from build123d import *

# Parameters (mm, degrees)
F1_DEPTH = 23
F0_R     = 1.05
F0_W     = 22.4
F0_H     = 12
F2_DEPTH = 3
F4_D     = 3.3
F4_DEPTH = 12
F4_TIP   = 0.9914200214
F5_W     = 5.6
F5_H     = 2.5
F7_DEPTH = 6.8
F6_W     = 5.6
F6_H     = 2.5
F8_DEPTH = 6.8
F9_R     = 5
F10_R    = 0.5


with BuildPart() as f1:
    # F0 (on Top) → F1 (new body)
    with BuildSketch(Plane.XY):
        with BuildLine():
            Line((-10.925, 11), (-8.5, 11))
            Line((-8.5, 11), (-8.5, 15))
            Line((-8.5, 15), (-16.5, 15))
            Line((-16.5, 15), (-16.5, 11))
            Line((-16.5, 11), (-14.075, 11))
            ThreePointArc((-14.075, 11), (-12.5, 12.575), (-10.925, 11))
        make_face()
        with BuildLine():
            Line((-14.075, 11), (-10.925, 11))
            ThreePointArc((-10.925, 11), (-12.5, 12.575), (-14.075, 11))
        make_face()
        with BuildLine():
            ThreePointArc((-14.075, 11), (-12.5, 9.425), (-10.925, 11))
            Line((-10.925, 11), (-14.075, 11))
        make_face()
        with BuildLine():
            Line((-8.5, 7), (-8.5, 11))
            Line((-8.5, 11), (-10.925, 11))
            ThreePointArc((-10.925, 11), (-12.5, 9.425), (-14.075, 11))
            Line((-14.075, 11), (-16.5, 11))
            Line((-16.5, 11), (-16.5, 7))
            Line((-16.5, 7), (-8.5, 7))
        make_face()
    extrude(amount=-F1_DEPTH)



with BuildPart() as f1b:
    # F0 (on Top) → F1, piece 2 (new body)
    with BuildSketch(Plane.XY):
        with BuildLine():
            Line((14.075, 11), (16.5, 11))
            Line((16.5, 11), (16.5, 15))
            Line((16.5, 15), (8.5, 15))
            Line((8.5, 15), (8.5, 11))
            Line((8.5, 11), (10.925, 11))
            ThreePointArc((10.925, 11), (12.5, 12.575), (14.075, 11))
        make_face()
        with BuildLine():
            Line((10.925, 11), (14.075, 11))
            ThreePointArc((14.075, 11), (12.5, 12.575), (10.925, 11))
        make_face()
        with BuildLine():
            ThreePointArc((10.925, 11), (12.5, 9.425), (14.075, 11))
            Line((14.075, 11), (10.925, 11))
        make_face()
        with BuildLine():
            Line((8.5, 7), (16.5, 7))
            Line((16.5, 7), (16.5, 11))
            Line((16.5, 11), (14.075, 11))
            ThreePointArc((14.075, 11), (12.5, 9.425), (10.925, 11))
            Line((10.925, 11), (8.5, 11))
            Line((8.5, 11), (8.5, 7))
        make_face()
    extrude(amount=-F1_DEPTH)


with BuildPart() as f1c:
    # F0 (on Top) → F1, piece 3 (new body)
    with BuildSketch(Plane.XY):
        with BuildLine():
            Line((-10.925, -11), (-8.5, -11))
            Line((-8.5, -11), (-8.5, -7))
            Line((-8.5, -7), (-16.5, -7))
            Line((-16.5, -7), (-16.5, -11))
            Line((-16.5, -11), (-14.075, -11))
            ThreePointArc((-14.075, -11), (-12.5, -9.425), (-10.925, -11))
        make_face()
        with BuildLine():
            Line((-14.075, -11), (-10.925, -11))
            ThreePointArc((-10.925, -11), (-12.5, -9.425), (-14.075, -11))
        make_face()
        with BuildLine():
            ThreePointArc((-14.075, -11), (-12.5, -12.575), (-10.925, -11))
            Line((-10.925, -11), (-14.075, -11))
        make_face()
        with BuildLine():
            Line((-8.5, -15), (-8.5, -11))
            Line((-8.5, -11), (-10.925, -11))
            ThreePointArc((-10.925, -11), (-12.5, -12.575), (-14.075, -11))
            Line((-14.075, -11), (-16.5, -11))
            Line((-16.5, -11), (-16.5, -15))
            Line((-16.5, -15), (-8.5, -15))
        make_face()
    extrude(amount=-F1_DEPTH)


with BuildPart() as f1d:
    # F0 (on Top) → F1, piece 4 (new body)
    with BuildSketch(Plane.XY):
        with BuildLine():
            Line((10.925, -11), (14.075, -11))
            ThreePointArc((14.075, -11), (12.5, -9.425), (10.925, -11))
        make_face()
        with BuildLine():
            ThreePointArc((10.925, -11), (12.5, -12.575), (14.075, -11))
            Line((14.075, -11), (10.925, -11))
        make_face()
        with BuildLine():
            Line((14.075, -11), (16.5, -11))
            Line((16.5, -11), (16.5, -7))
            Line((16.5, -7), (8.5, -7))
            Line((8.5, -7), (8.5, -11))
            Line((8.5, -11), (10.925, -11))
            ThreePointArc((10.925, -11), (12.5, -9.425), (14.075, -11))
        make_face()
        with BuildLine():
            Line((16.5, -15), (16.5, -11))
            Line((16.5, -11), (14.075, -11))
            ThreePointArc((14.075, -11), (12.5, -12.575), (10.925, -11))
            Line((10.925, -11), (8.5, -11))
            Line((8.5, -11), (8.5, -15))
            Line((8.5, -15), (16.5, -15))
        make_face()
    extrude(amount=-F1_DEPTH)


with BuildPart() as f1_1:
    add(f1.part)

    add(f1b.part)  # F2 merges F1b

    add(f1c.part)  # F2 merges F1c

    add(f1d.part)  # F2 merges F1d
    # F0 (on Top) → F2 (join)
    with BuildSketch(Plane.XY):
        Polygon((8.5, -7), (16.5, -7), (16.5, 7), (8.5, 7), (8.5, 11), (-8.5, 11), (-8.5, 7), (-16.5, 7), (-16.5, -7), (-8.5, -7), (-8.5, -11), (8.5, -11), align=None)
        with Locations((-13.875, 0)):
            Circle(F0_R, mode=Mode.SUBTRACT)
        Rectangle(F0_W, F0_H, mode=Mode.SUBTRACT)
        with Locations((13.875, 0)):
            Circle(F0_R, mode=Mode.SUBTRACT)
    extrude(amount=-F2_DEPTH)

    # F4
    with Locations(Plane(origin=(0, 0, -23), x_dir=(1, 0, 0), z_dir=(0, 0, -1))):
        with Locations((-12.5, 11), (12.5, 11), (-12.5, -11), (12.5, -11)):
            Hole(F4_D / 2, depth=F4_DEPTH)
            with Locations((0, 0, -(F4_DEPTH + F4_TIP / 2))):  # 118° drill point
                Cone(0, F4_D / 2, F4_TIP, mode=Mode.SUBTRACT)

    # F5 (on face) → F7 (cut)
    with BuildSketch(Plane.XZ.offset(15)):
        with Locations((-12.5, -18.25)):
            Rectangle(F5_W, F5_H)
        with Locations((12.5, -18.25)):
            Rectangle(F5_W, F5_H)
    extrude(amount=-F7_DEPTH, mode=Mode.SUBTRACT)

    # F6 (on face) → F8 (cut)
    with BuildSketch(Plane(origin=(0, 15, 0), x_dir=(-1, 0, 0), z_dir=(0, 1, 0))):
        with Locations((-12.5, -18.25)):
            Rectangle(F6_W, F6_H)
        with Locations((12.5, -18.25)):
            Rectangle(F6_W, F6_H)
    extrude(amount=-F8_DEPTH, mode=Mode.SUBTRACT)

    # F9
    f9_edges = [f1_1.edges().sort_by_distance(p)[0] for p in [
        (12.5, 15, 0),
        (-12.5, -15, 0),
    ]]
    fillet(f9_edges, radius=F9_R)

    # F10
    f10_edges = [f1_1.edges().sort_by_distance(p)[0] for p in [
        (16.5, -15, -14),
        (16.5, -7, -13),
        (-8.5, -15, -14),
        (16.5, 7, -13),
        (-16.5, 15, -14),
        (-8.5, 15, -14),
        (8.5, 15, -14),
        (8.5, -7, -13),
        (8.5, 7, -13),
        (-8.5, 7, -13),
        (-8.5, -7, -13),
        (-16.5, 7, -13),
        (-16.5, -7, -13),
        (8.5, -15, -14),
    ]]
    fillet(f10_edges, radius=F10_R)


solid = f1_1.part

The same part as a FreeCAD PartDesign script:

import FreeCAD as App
import Part
import Sketcher

V = App.Vector
Q = App.Units.Quantity


def edges_at(feature, points):
    """Names of the edges that pass closest to the given points."""
    edges = feature.Shape.Edges
    near = lambda p: min(range(len(edges)), key=lambda i: edges[i].distToShape(Part.Vertex(*p))[0])
    return sorted({f"Edge{near(p) + 1}" for p in points})

doc = App.newDocument("Part")
body = doc.addObject("PartDesign::Body", "Body")

# Sketch on XY plane
sketch1 = body.newObject("Sketcher::SketchObject", "Sketch")
sketch1.AttachmentSupport = (doc.getObject("XY_Plane"), [""])
sketch1.MapMode = "FlatFace"
sketch1.addGeometry([
    Part.LineSegment(V(-8.5, 15, 0), V(-16.5, 15, 0)),
    Part.LineSegment(V(-16.5, 15, 0), V(-16.5, 7, 0)),
    Part.LineSegment(V(-16.5, 7, 0), V(-8.5, 7, 0)),
    Part.LineSegment(V(-8.5, 7, 0), V(-8.5, 15, 0)),
], False)
sketch1.addConstraint([
    Sketcher.Constraint("Coincident", 0, 2, 1, 1),
    Sketcher.Constraint("Coincident", 1, 2, 2, 1),
    Sketcher.Constraint("Coincident", 2, 2, 3, 1),
    Sketcher.Constraint("Coincident", 3, 2, 0, 1),
    Sketcher.Constraint("Horizontal", 0),
    Sketcher.Constraint("Vertical", 1),
    Sketcher.Constraint("Horizontal", 2),
    Sketcher.Constraint("Vertical", 3),
    Sketcher.Constraint("Equal", 2, 1),
    Sketcher.Constraint("DistanceX", 0, 2, 0, 1, Q("8 mm")),
    Sketcher.Constraint("DistanceY", -1, 1, 0, 2, Q("15 mm")),
    Sketcher.Constraint("DistanceX", 0, 2, -1, 1, Q("16.5 mm")),
])
pad1 = body.newObject("PartDesign::Pad", "Pad")
pad1.Profile = sketch1
pad1.Length = 23
pad1.Reversed = True
body2 = doc.addObject("PartDesign::Body", "Body001")

# Sketch on XY plane
sketch2 = body2.newObject("Sketcher::SketchObject", "Sketch001")
sketch2.AttachmentSupport = (doc.getObject("XY_Plane001"), [""])
sketch2.MapMode = "FlatFace"
sketch2.addGeometry([
    Part.LineSegment(V(16.5, 15, 0), V(8.5, 15, 0)),
    Part.LineSegment(V(8.5, 15, 0), V(8.5, 7, 0)),
    Part.LineSegment(V(8.5, 7, 0), V(16.5, 7, 0)),
    Part.LineSegment(V(16.5, 7, 0), V(16.5, 15, 0)),
], False)
sketch2.addConstraint([
    Sketcher.Constraint("Coincident", 0, 2, 1, 1),
    Sketcher.Constraint("Coincident", 1, 2, 2, 1),
    Sketcher.Constraint("Coincident", 2, 2, 3, 1),
    Sketcher.Constraint("Coincident", 3, 2, 0, 1),
    Sketcher.Constraint("Horizontal", 0),
    Sketcher.Constraint("Vertical", 1),
    Sketcher.Constraint("Horizontal", 2),
    Sketcher.Constraint("Vertical", 3),
    Sketcher.Constraint("Equal", 2, 1),
    Sketcher.Constraint("DistanceX", 0, 2, 0, 1, Q("8 mm")),
    Sketcher.Constraint("DistanceY", -1, 1, 0, 2, Q("15 mm")),
    Sketcher.Constraint("DistanceX", -1, 1, 0, 2, Q("8.5 mm")),
])
pad2 = body2.newObject("PartDesign::Pad", "Pad001")
pad2.Profile = sketch2
pad2.Length = 23
pad2.Reversed = True
body3 = doc.addObject("PartDesign::Body", "Body002")

# Sketch on XY plane
sketch3 = body3.newObject("Sketcher::SketchObject", "Sketch002")
sketch3.AttachmentSupport = (doc.getObject("XY_Plane002"), [""])
sketch3.MapMode = "FlatFace"
sketch3.addGeometry([
    Part.LineSegment(V(-8.5, -7, 0), V(-16.5, -7, 0)),
    Part.LineSegment(V(-16.5, -7, 0), V(-16.5, -15, 0)),
    Part.LineSegment(V(-16.5, -15, 0), V(-8.5, -15, 0)),
    Part.LineSegment(V(-8.5, -15, 0), V(-8.5, -7, 0)),
], False)
sketch3.addConstraint([
    Sketcher.Constraint("Coincident", 0, 2, 1, 1),
    Sketcher.Constraint("Coincident", 1, 2, 2, 1),
    Sketcher.Constraint("Coincident", 2, 2, 3, 1),
    Sketcher.Constraint("Coincident", 3, 2, 0, 1),
    Sketcher.Constraint("Horizontal", 0),
    Sketcher.Constraint("Vertical", 1),
    Sketcher.Constraint("Horizontal", 2),
    Sketcher.Constraint("Vertical", 3),
    Sketcher.Constraint("Equal", 2, 1),
    Sketcher.Constraint("DistanceX", 0, 2, 0, 1, Q("8 mm")),
    Sketcher.Constraint("DistanceY", 0, 2, -1, 1, Q("7 mm")),
    Sketcher.Constraint("DistanceX", 0, 2, -1, 1, Q("16.5 mm")),
])
pad3 = body3.newObject("PartDesign::Pad", "Pad002")
pad3.Profile = sketch3
pad3.Length = 23
pad3.Reversed = True
body4 = doc.addObject("PartDesign::Body", "Body003")

# Sketch on XY plane
sketch4 = body4.newObject("Sketcher::SketchObject", "Sketch003")
sketch4.AttachmentSupport = (doc.getObject("XY_Plane003"), [""])
sketch4.MapMode = "FlatFace"
sketch4.addGeometry([
    Part.LineSegment(V(16.5, -7, 0), V(8.5, -7, 0)),
    Part.LineSegment(V(8.5, -7, 0), V(8.5, -15, 0)),
    Part.LineSegment(V(8.5, -15, 0), V(16.5, -15, 0)),
    Part.LineSegment(V(16.5, -15, 0), V(16.5, -7, 0)),
], False)
sketch4.addConstraint([
    Sketcher.Constraint("Coincident", 0, 2, 1, 1),
    Sketcher.Constraint("Coincident", 1, 2, 2, 1),
    Sketcher.Constraint("Coincident", 2, 2, 3, 1),
    Sketcher.Constraint("Coincident", 3, 2, 0, 1),
    Sketcher.Constraint("Horizontal", 0),
    Sketcher.Constraint("Vertical", 1),
    Sketcher.Constraint("Horizontal", 2),
    Sketcher.Constraint("Vertical", 3),
    Sketcher.Constraint("Equal", 2, 1),
    Sketcher.Constraint("DistanceX", 0, 2, 0, 1, Q("8 mm")),
    Sketcher.Constraint("DistanceY", 0, 2, -1, 1, Q("7 mm")),
    Sketcher.Constraint("DistanceX", -1, 1, 0, 2, Q("8.5 mm")),
])
pad4 = body4.newObject("PartDesign::Pad", "Pad003")
pad4.Profile = sketch4
pad4.Length = 23
pad4.Reversed = True
body.AllowCompound = True
doc.recompute()

boolean = body.newObject("PartDesign::Boolean", "Boolean")
boolean.Type = "Fuse"
boolean.addObjects([body2])
doc.recompute()

boolean2 = body.newObject("PartDesign::Boolean", "Boolean001")
boolean2.Type = "Fuse"
boolean2.addObjects([body3])
doc.recompute()

boolean3 = body.newObject("PartDesign::Boolean", "Boolean002")
boolean3.Type = "Fuse"
boolean3.addObjects([body4])

# Sketch on XY plane
sketch5 = body.newObject("Sketcher::SketchObject", "Sketch004")
sketch5.AttachmentSupport = (doc.getObject("XY_Plane"), [""])
sketch5.MapMode = "FlatFace"
sketch5.addGeometry([
    Part.LineSegment(V(8.5, -7, 0), V(16.5, -7, 0)),  # 0
    Part.LineSegment(V(16.5, -7, 0), V(16.5, 7, 0)),  # 1
    Part.LineSegment(V(16.5, 7, 0), V(8.5, 7, 0)),  # 2
    Part.LineSegment(V(8.5, 7, 0), V(8.5, 11, 0)),  # 3
    Part.LineSegment(V(8.5, 11, 0), V(-8.5, 11, 0)),  # 4
    Part.LineSegment(V(-8.5, 11, 0), V(-8.5, 7, 0)),  # 5
    Part.LineSegment(V(-8.5, 7, 0), V(-16.5, 7, 0)),  # 6
    Part.LineSegment(V(-16.5, 7, 0), V(-16.5, -7, 0)),  # 7
    Part.LineSegment(V(-16.5, -7, 0), V(-8.5, -7, 0)),  # 8
    Part.LineSegment(V(-8.5, -7, 0), V(-8.5, -11, 0)),  # 9
    Part.LineSegment(V(-8.5, -11, 0), V(8.5, -11, 0)),  # 10
    Part.LineSegment(V(8.5, -11, 0), V(8.5, -7, 0)),  # 11
    Part.Circle(V(-13.875, 0, 0), V(0, 0, 1), 1.05),  # 12
    Part.LineSegment(V(11.2, -6, 0), V(-11.2, -6, 0)),  # 13
    Part.LineSegment(V(-11.2, -6, 0), V(-11.2, 6, 0)),  # 14
    Part.LineSegment(V(-11.2, 6, 0), V(11.2, 6, 0)),  # 15
    Part.LineSegment(V(11.2, 6, 0), V(11.2, -6, 0)),  # 16
    Part.Circle(V(13.875, 0, 0), V(0, 0, 1), 1.05),  # 17
], False)
sketch5.addConstraint([
    Sketcher.Constraint("Coincident", 0, 2, 1, 1),
    Sketcher.Constraint("Coincident", 1, 2, 2, 1),
    Sketcher.Constraint("Coincident", 2, 2, 3, 1),
    Sketcher.Constraint("Coincident", 3, 2, 4, 1),
    Sketcher.Constraint("Coincident", 4, 2, 5, 1),
    Sketcher.Constraint("Coincident", 5, 2, 6, 1),
    Sketcher.Constraint("Coincident", 6, 2, 7, 1),
    Sketcher.Constraint("Coincident", 7, 2, 8, 1),
    Sketcher.Constraint("Coincident", 8, 2, 9, 1),
    Sketcher.Constraint("Coincident", 9, 2, 10, 1),
    Sketcher.Constraint("Coincident", 10, 2, 11, 1),
    Sketcher.Constraint("Coincident", 11, 2, 0, 1),
    Sketcher.Constraint("Coincident", 13, 2, 14, 1),
    Sketcher.Constraint("Coincident", 14, 2, 15, 1),
    Sketcher.Constraint("Coincident", 15, 2, 16, 1),
    Sketcher.Constraint("Coincident", 16, 2, 13, 1),
    Sketcher.Constraint("Horizontal", 0),
    Sketcher.Constraint("Vertical", 1),
    Sketcher.Constraint("Horizontal", 2),
    Sketcher.Constraint("Vertical", 3),
    Sketcher.Constraint("Horizontal", 4),
    Sketcher.Constraint("Vertical", 5),
    Sketcher.Constraint("Horizontal", 6),
    Sketcher.Constraint("Vertical", 7),
    Sketcher.Constraint("Horizontal", 8),
    Sketcher.Constraint("Vertical", 9),
    Sketcher.Constraint("Horizontal", 10),
    Sketcher.Constraint("Vertical", 11),
    Sketcher.Constraint("Horizontal", 13),
    Sketcher.Constraint("Vertical", 14),
    Sketcher.Constraint("Horizontal", 15),
    Sketcher.Constraint("Vertical", 16),
    Sketcher.Constraint("Equal", 12, 17),
    Sketcher.Constraint("Symmetric", 12, 3, 17, 3, -1, 1),
    Sketcher.Constraint("Symmetric", 0, 2, 6, 2, -1, 1),
    Sketcher.Constraint("Symmetric", 2, 2, 8, 2, -1, 1),
    Sketcher.Constraint("Symmetric", 4, 2, 10, 2, -1, 1),
    Sketcher.Constraint("Symmetric", 13, 2, 15, 2, -1, 1),
    Sketcher.Constraint("Symmetric", 2, 2, 5, 2, -2),
    Sketcher.Constraint("PointOnObject", 12, 3, -1),
    Sketcher.Constraint("Diameter", 12, Q("2.1 mm")),
    Sketcher.Constraint("DistanceX", 0, 1, 0, 2, Q("8 mm")),
    Sketcher.Constraint("DistanceX", 4, 2, 4, 1, Q("17 mm")),
    Sketcher.Constraint("DistanceY", 1, 1, 1, 2, Q("14 mm")),
    Sketcher.Constraint("DistanceY", 3, 1, 3, 2, Q("4 mm")),
    Sketcher.Constraint("DistanceY", 14, 1, 14, 2, Q("12 mm")),
    Sketcher.Constraint("DistanceX", 13, 2, 13, 1, Q("22.4 mm")),
    Sketcher.Constraint("DistanceX", 12, 3, 17, 3, Q("27.75 mm")),
])
pad5 = body.newObject("PartDesign::Pad", "Pad004")
pad5.Profile = sketch5
pad5.Length = 3
pad5.Reversed = True

# Sketch on XY plane
sketch6 = body.newObject("Sketcher::SketchObject", "Sketch005")
sketch6.AttachmentSupport = (doc.getObject("XY_Plane"), [""])
sketch6.MapMode = "FlatFace"
sketch6.AttachmentOffset = App.Placement(V(0, 0, -23), App.Rotation())
sketch6.addGeometry([
    Part.Circle(V(-12.5, -11, 0), V(0, 0, 1), 1.65),
    Part.Circle(V(12.5, -11, 0), V(0, 0, 1), 1.65),
    Part.Circle(V(-12.5, 11, 0), V(0, 0, 1), 1.65),
    Part.Circle(V(12.5, 11, 0), V(0, 0, 1), 1.65),
], False)
sketch6.addConstraint([
    Sketcher.Constraint("Equal", 0, 1),
    Sketcher.Constraint("Equal", 1, 2),
    Sketcher.Constraint("Equal", 2, 3),
    Sketcher.Constraint("Symmetric", 1, 3, 2, 3, -1, 1),
    Sketcher.Constraint("Symmetric", 0, 3, 3, 3, -1, 1),
    Sketcher.Constraint("Symmetric", 0, 3, 1, 3, -2),
    Sketcher.Constraint("Diameter", 0, Q("3.3 mm")),
    Sketcher.Constraint("DistanceY", 0, 3, -1, 1, Q("11 mm")),
    Sketcher.Constraint("DistanceX", 0, 3, 1, 3, Q("25 mm")),
])
doc.recompute()
hole = body.newObject("PartDesign::Hole", "Hole")
hole.Profile = sketch6
hole.ThreadType = "None"
hole.Diameter = 3.3
hole.DepthType = "Dimension"
hole.Depth = 12
hole.DrillPoint = "Angled"
hole.DrillPointAngle = 118
hole.Reversed = True

# Sketch on XZ plane
sketch7 = body.newObject("Sketcher::SketchObject", "Sketch006")
sketch7.AttachmentSupport = (doc.getObject("XZ_Plane"), [""])
sketch7.MapMode = "FlatFace"
sketch7.AttachmentOffset = App.Placement(V(0, 0, 15), App.Rotation())
sketch7.addGeometry([
    Part.LineSegment(V(-15.3, -17, 0), V(-15.3, -19.5, 0)),  # 0
    Part.LineSegment(V(-15.3, -19.5, 0), V(-9.7, -19.5, 0)),  # 1
    Part.LineSegment(V(-9.7, -19.5, 0), V(-9.7, -17, 0)),  # 2
    Part.LineSegment(V(-9.7, -17, 0), V(-15.3, -17, 0)),  # 3
    Part.LineSegment(V(9.7, -17, 0), V(9.7, -19.5, 0)),  # 4
    Part.LineSegment(V(9.7, -19.5, 0), V(15.3, -19.5, 0)),  # 5
    Part.LineSegment(V(15.3, -19.5, 0), V(15.3, -17, 0)),  # 6
    Part.LineSegment(V(15.3, -17, 0), V(9.7, -17, 0)),  # 7
], False)
sketch7.addConstraint([
    Sketcher.Constraint("Coincident", 0, 2, 1, 1),
    Sketcher.Constraint("Coincident", 1, 2, 2, 1),
    Sketcher.Constraint("Coincident", 2, 2, 3, 1),
    Sketcher.Constraint("Coincident", 3, 2, 0, 1),
    Sketcher.Constraint("Coincident", 4, 2, 5, 1),
    Sketcher.Constraint("Coincident", 5, 2, 6, 1),
    Sketcher.Constraint("Coincident", 6, 2, 7, 1),
    Sketcher.Constraint("Coincident", 7, 2, 4, 1),
    Sketcher.Constraint("Vertical", 0),
    Sketcher.Constraint("Horizontal", 1),
    Sketcher.Constraint("Vertical", 2),
    Sketcher.Constraint("Horizontal", 3),
    Sketcher.Constraint("Vertical", 4),
    Sketcher.Constraint("Horizontal", 5),
    Sketcher.Constraint("Vertical", 6),
    Sketcher.Constraint("Horizontal", 7),
    Sketcher.Constraint("Symmetric", 1, 2, 4, 2, -2),
    Sketcher.Constraint("Symmetric", 3, 2, 6, 2, -2),
    Sketcher.Constraint("DistanceX", 1, 1, 1, 2, Q("5.6 mm")),
    Sketcher.Constraint("DistanceY", 0, 2, 0, 1, Q("2.5 mm")),
    Sketcher.Constraint("DistanceY", 2, 2, -1, 1, Q("17 mm")),
    Sketcher.Constraint("DistanceX", 0, 2, 4, 2, Q("25 mm")),
])
pocket1 = body.newObject("PartDesign::Pocket", "Pocket")
pocket1.Profile = sketch7
pocket1.Length = 6.8

# Sketch on XZ plane
sketch8 = body.newObject("Sketcher::SketchObject", "Sketch007")
sketch8.AttachmentSupport = (doc.getObject("XZ_Plane"), [""])
sketch8.MapMode = "FlatFace"
sketch8.AttachmentOffset = App.Placement(V(0, 0, -15), App.Rotation())
sketch8.addGeometry([
    Part.LineSegment(V(15.3, -17, 0), V(15.3, -19.5, 0)),  # 0
    Part.LineSegment(V(15.3, -19.5, 0), V(9.7, -19.5, 0)),  # 1
    Part.LineSegment(V(9.7, -19.5, 0), V(9.7, -17, 0)),  # 2
    Part.LineSegment(V(9.7, -17, 0), V(15.3, -17, 0)),  # 3
    Part.LineSegment(V(-9.7, -17, 0), V(-9.7, -19.5, 0)),  # 4
    Part.LineSegment(V(-9.7, -19.5, 0), V(-15.3, -19.5, 0)),  # 5
    Part.LineSegment(V(-15.3, -19.5, 0), V(-15.3, -17, 0)),  # 6
    Part.LineSegment(V(-15.3, -17, 0), V(-9.7, -17, 0)),  # 7
], False)
sketch8.addConstraint([
    Sketcher.Constraint("Coincident", 0, 2, 1, 1),
    Sketcher.Constraint("Coincident", 1, 2, 2, 1),
    Sketcher.Constraint("Coincident", 2, 2, 3, 1),
    Sketcher.Constraint("Coincident", 3, 2, 0, 1),
    Sketcher.Constraint("Coincident", 4, 2, 5, 1),
    Sketcher.Constraint("Coincident", 5, 2, 6, 1),
    Sketcher.Constraint("Coincident", 6, 2, 7, 1),
    Sketcher.Constraint("Coincident", 7, 2, 4, 1),
    Sketcher.Constraint("Vertical", 0),
    Sketcher.Constraint("Horizontal", 1),
    Sketcher.Constraint("Vertical", 2),
    Sketcher.Constraint("Horizontal", 3),
    Sketcher.Constraint("Vertical", 4),
    Sketcher.Constraint("Horizontal", 5),
    Sketcher.Constraint("Vertical", 6),
    Sketcher.Constraint("Horizontal", 7),
    Sketcher.Constraint("Symmetric", 1, 2, 4, 2, -2),
    Sketcher.Constraint("Symmetric", 3, 2, 6, 2, -2),
    Sketcher.Constraint("DistanceX", 1, 2, 1, 1, Q("5.6 mm")),
    Sketcher.Constraint("DistanceY", 0, 2, 0, 1, Q("2.5 mm")),
    Sketcher.Constraint("DistanceY", 2, 2, -1, 1, Q("17 mm")),
    Sketcher.Constraint("DistanceX", 4, 2, 0, 2, Q("25 mm")),
])
pocket2 = body.newObject("PartDesign::Pocket", "Pocket001")
pocket2.Profile = sketch8
pocket2.Length = 6.8
pocket2.Reversed = True
doc.recompute()

fillet = body.newObject("PartDesign::Fillet", "Fillet")
fillet.Base = (pocket2, edges_at(pocket2, [(12.5, 15, 0), (-12.5, -15, 0)]))
fillet.Radius = 5
doc.recompute()

fillet2 = body.newObject("PartDesign::Fillet", "Fillet001")
fillet2.Base = (fillet, edges_at(fillet, [
    (16.5, -15, -14),
    (16.5, -7, -13),
    (-8.5, -15, -14),
    (16.5, 7, -13),
    (-16.5, 15, -14),
    (-8.5, 15, -14),
    (8.5, 15, -14),
    (8.5, -7, -13),
    (8.5, 7, -13),
    (-8.5, 7, -13),
    (-8.5, -7, -13),
    (-16.5, 7, -13),
    (-16.5, -7, -13),
    (8.5, -15, -14),
]))
fillet2.Radius = 0.5

doc.recompute()
